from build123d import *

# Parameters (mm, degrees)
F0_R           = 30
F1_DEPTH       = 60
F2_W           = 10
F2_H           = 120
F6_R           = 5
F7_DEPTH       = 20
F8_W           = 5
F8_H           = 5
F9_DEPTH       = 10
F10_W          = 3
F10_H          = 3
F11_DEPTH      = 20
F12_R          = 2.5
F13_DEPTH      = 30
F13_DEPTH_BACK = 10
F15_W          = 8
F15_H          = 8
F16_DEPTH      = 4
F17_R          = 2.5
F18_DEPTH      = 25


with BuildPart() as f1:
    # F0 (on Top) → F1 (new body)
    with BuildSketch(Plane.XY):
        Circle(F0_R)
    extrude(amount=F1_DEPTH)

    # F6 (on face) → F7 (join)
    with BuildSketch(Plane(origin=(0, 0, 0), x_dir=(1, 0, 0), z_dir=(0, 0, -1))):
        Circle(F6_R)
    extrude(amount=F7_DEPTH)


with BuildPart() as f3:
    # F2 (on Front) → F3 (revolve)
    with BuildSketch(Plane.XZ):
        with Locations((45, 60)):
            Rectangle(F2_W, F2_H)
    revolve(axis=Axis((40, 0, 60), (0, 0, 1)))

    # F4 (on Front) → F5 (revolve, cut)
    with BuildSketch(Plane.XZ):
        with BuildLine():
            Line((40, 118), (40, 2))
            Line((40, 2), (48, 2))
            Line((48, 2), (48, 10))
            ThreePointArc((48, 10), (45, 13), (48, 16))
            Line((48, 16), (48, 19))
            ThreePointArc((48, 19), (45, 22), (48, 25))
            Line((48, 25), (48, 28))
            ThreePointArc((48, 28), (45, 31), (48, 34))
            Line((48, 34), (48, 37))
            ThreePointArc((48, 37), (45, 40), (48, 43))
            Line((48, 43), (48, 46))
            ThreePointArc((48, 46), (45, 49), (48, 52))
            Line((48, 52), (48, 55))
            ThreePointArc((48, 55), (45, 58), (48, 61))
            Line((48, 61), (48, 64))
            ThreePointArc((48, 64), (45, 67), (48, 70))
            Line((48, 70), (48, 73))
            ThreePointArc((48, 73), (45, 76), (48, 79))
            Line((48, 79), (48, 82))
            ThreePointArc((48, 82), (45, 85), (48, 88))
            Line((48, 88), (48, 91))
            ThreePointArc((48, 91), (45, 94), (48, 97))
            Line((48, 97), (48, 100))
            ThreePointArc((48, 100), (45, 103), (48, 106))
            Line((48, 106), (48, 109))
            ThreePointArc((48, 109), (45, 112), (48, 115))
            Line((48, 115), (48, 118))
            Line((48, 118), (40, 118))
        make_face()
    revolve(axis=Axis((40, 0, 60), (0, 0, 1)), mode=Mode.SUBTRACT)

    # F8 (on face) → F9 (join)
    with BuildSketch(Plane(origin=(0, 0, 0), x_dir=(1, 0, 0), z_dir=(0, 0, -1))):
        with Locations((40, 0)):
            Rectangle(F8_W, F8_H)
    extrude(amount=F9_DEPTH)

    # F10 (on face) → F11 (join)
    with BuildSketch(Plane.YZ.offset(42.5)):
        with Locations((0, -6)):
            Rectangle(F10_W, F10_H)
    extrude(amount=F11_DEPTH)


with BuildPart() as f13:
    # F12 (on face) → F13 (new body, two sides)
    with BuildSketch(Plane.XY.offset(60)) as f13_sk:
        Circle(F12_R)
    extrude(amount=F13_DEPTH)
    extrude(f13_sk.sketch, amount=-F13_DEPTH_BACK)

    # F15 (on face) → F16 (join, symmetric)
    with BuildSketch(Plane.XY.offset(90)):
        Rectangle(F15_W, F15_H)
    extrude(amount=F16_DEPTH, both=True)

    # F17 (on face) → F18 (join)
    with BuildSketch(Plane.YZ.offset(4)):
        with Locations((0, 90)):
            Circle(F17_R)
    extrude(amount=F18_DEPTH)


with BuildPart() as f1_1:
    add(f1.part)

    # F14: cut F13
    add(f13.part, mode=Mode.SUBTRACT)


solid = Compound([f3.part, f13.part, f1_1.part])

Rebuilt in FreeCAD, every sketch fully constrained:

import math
import FreeCAD as App
import Part
import Sketcher


def add_polygon(sketch, points):
    """Adds a closed chain of lines whose ends are joined by coincident constraints."""
    first, n = sketch.GeometryCount, len(points)
    for a, b in zip(points, points[1:] + points[:1]):
        sketch.addGeometry(Part.LineSegment(App.Vector(*a, 0), App.Vector(*b, 0)), False)
    for i in range(n):
        sketch.addConstraint(Sketcher.Constraint("Coincident", first + i, 2, first + (i + 1) % n, 1))

doc = App.newDocument("Part")
params = doc.addObject("Spreadsheet::Sheet", "Params")
for row, (alias, value) in enumerate([
    ("sketch1_diameter", "60 mm"),
    ("pad1_length", "60 mm"),
    ("sketch2_diameter", "10 mm"),
    ("pad2_length", "20 mm"),
    ("sketch3_width", "10 mm"),
    ("sketch3_height", "120 mm"),
    ("revolution_angle", "360 deg"),
    ("sketch4_radius", "3 mm"),
    ("sketch4_width", "8 mm"),
    ("sketch4_height", "116 mm"),
    ("groove_angle", "360 deg"),
    ("sketch5_width", "5 mm"),
    ("pad3_length", "10 mm"),
    ("sketch6_width", "3 mm"),
    ("pad4_length", "20 mm"),
    ("sketch7_diameter", "5 mm"),
    ("pad5_length", "30 mm"),
    ("pad5_length2", "10 mm"),
    ("sketch8_width", "8 mm"),
    ("pad6_length", "8 mm"),
    ("sketch9_diameter", "5 mm"),
    ("pad7_length", "25 mm"),
], start=1):
    params.set(f"A{row}", alias)
    params.set(f"B{row}", "=" + value)
    params.setAlias(f"B{row}", alias)

body = doc.addObject("PartDesign::Body", "Body")

sketch1 = body.newObject("Sketcher::SketchObject", "Sketch")
sketch1.AttachmentSupport = (doc.getObject("XY_Plane"), [""])
sketch1.MapMode = "FlatFace"
sketch1.addGeometry(Part.Circle(App.Vector(0, 0, 0), App.Vector(0, 0, 1), 30), False)
sketch1.addConstraint(Sketcher.Constraint("Coincident", 0, 3, -1, 1))
sketch1.addConstraint(Sketcher.Constraint("Diameter", 0, 60.0))
sketch1.setExpression("Constraints[1]", "Params.sketch1_diameter")
pad1 = body.newObject("PartDesign::Pad", "Pad")
pad1.Profile = sketch1
pad1.setExpression("Length", "Params.pad1_length")

sketch2 = body.newObject("Sketcher::SketchObject", "Sketch001")
sketch2.AttachmentSupport = (doc.getObject("XY_Plane"), [""])
sketch2.MapMode = "FlatFace"
sketch2.addGeometry(Part.Circle(App.Vector(0, 0, 0), App.Vector(0, 0, 1), 5), False)
sketch2.addConstraint(Sketcher.Constraint("Coincident", 0, 3, -1, 1))
sketch2.addConstraint(Sketcher.Constraint("Diameter", 0, 10.0))
sketch2.setExpression("Constraints[1]", "Params.sketch2_diameter")
pad2 = body.newObject("PartDesign::Pad", "Pad001")
pad2.Profile = sketch2
pad2.setExpression("Length", "Params.pad2_length")
pad2.Reversed = True
body2 = doc.addObject("PartDesign::Body", "Body001")

sketch3 = body2.newObject("Sketcher::SketchObject", "Sketch002")
sketch3.AttachmentSupport = (doc.getObject("XZ_Plane001"), [""])
sketch3.MapMode = "FlatFace"
add_polygon(sketch3, [(40, 120), (40, 0), (50, 0), (50, 120)])
sketch3.addGeometry(Part.LineSegment(App.Vector(40, 0, 0), App.Vector(40, 120, 0)), True)
sketch3.addConstraint(Sketcher.Constraint("Vertical", 0))
sketch3.addConstraint(Sketcher.Constraint("Horizontal", 1))
sketch3.addConstraint(Sketcher.Constraint("Vertical", 2))
sketch3.addConstraint(Sketcher.Constraint("Horizontal", 3))
sketch3.addConstraint(Sketcher.Constraint("Vertical", 4))
sketch3.addConstraint(Sketcher.Constraint("Coincident", 4, 1, 0, 2))
sketch3.addConstraint(Sketcher.Constraint("PointOnObject", 0, 2, -1))
sketch3.addConstraint(Sketcher.Constraint("Horizontal", 2, 2, 4, 2))
sketch3.addConstraint(Sketcher.Constraint("DistanceX", 1, 1, 1, 2, 10.0))
sketch3.addConstraint(Sketcher.Constraint("DistanceY", 0, 2, 0, 1, 120.0))
sketch3.addConstraint(Sketcher.Constraint("DistanceX", -1, 1, 0, 2, 40.0))
sketch3.setExpression("Constraints[12]", "Params.sketch3_width")
sketch3.setExpression("Constraints[13]", "Params.sketch3_height")
revolution = body2.newObject("PartDesign::Revolution", "Revolution")
revolution.Profile = sketch3
revolution.ReferenceAxis = (sketch3, ["Axis0"])
revolution.setExpression("Angle", "Params.revolution_angle")

sketch4 = body2.newObject("Sketcher::SketchObject", "Sketch003")
sketch4.AttachmentSupport = (doc.getObject("XZ_Plane001"), [""])
sketch4.MapMode = "FlatFace"
sketch4.addGeometry(Part.LineSegment(App.Vector(40, 118, 0), App.Vector(40, 2, 0)), False)
sketch4.addGeometry(Part.LineSegment(App.Vector(40, 2, 0), App.Vector(48, 2, 0)), False)
sketch4.addGeometry(Part.LineSegment(App.Vector(48, 2, 0), App.Vector(48, 10, 0)), False)
sketch4.addGeometry(Part.ArcOfCircle(Part.Circle(App.Vector(48, 13, 0), App.Vector(0, 0, 1), 3), math.radians(90), math.radians(270)), False)
sketch4.addGeometry(Part.LineSegment(App.Vector(48, 16, 0), App.Vector(48, 19, 0)), False)
sketch4.addGeometry(Part.ArcOfCircle(Part.Circle(App.Vector(48, 22, 0), App.Vector(0, 0, 1), 3), math.radians(90), math.radians(270)), False)
sketch4.addGeometry(Part.LineSegment(App.Vector(48, 25, 0), App.Vector(48, 28, 0)), False)
sketch4.addGeometry(Part.ArcOfCircle(Part.Circle(App.Vector(48, 31, 0), App.Vector(0, 0, 1), 3), math.radians(90), math.radians(270)), False)
sketch4.addGeometry(Part.LineSegment(App.Vector(48, 34, 0), App.Vector(48, 37, 0)), False)
sketch4.addGeometry(Part.ArcOfCircle(Part.Circle(App.Vector(48, 40, 0), App.Vector(0, 0, 1), 3), math.radians(90), math.radians(270)), False)
sketch4.addGeometry(Part.LineSegment(App.Vector(48, 43, 0), App.Vector(48, 46, 0)), False)
sketch4.addGeometry(Part.ArcOfCircle(Part.Circle(App.Vector(48, 49, 0), App.Vector(0, 0, 1), 3), math.radians(90), math.radians(270)), False)
sketch4.addGeometry(Part.LineSegment(App.Vector(48, 52, 0), App.Vector(48, 55, 0)), False)
sketch4.addGeometry(Part.ArcOfCircle(Part.Circle(App.Vector(48, 58, 0), App.Vector(0, 0, 1), 3), math.radians(90), math.radians(270)), False)
sketch4.addGeometry(Part.LineSegment(App.Vector(48, 61, 0), App.Vector(48, 64, 0)), False)
sketch4.addGeometry(Part.ArcOfCircle(Part.Circle(App.Vector(48, 67, 0), App.Vector(0, 0, 1), 3), math.radians(90), math.radians(270)), False)
sketch4.addGeometry(Part.LineSegment(App.Vector(48, 70, 0), App.Vector(48, 73, 0)), False)
sketch4.addGeometry(Part.ArcOfCircle(Part.Circle(App.Vector(48, 76, 0), App.Vector(0, 0, 1), 3), math.radians(90), math.radians(270)), False)
sketch4.addGeometry(Part.LineSegment(App.Vector(48, 79, 0), App.Vector(48, 82, 0)), False)
sketch4.addGeometry(Part.ArcOfCircle(Part.Circle(App.Vector(48, 85, 0), App.Vector(0, 0, 1), 3), math.radians(90), math.radians(270)), False)
sketch4.addGeometry(Part.LineSegment(App.Vector(48, 88, 0), App.Vector(48, 91, 0)), False)
sketch4.addGeometry(Part.ArcOfCircle(Part.Circle(App.Vector(48, 94, 0), App.Vector(0, 0, 1), 3), math.radians(90), math.radians(270)), False)
sketch4.addGeometry(Part.LineSegment(App.Vector(48, 97, 0), App.Vector(48, 100, 0)), False)
sketch4.addGeometry(Part.ArcOfCircle(Part.Circle(App.Vector(48, 103, 0), App.Vector(0, 0, 1), 3), math.radians(90), math.radians(270)), False)
sketch4.addGeometry(Part.LineSegment(App.Vector(48, 106, 0), App.Vector(48, 109, 0)), False)
sketch4.addGeometry(Part.ArcOfCircle(Part.Circle(App.Vector(48, 112, 0), App.Vector(0, 0, 1), 3), math.radians(90), math.radians(270)), False)
sketch4.addGeometry(Part.LineSegment(App.Vector(48, 115, 0), App.Vector(48, 118, 0)), False)
sketch4.addGeometry(Part.LineSegment(App.Vector(48, 118, 0), App.Vector(40, 118, 0)), False)
sketch4.addGeometry(Part.LineSegment(App.Vector(40, 2, 0), App.Vector(40, 118, 0)), True)
sketch4.addConstraint(Sketcher.Constraint("Coincident", 0, 2, 1, 1))
sketch4.addConstraint(Sketcher.Constraint("Coincident", 1, 2, 2, 1))
sketch4.addConstraint(Sketcher.Constraint("Coincident", 2, 2, 3, 2))
sketch4.addConstraint(Sketcher.Constraint("Coincident", 3, 1, 4, 1))
sketch4.addConstraint(Sketcher.Constraint("Coincident", 4, 2, 5, 2))
sketch4.addConstraint(Sketcher.Constraint("Coincident", 5, 1, 6, 1))
sketch4.addConstraint(Sketcher.Constraint("Coincident", 6, 2, 7, 2))
sketch4.addConstraint(Sketcher.Constraint("Coincident", 7, 1, 8, 1))
sketch4.addConstraint(Sketcher.Constraint("Coincident", 8, 2, 9, 2))
sketch4.addConstraint(Sketcher.Constraint("Coincident", 9, 1, 10, 1))
sketch4.addConstraint(Sketcher.Constraint("Coincident", 10, 2, 11, 2))
sketch4.addConstraint(Sketcher.Constraint("Coincident", 11, 1, 12, 1))
sketch4.addConstraint(Sketcher.Constraint("Coincident", 12, 2, 13, 2))
sketch4.addConstraint(Sketcher.Constraint("Coincident", 13, 1, 14, 1))
sketch4.addConstraint(Sketcher.Constraint("Coincident", 14, 2, 15, 2))
sketch4.addConstraint(Sketcher.Constraint("Coincident", 15, 1, 16, 1))
sketch4.addConstraint(Sketcher.Constraint("Coincident", 16, 2, 17, 2))
sketch4.addConstraint(Sketcher.Constraint("Coincident", 17, 1, 18, 1))
sketch4.addConstraint(Sketcher.Constraint("Coincident", 18, 2, 19, 2))
sketch4.addConstraint(Sketcher.Constraint("Coincident", 19, 1, 20, 1))
sketch4.addConstraint(Sketcher.Constraint("Coincident", 20, 2, 21, 2))
sketch4.addConstraint(Sketcher.Constraint("Coincident", 21, 1, 22, 1))
sketch4.addConstraint(Sketcher.Constraint("Coincident", 22, 2, 23, 2))
sketch4.addConstraint(Sketcher.Constraint("Coincident", 23, 1, 24, 1))
sketch4.addConstraint(Sketcher.Constraint("Coincident", 24, 2, 25, 2))
sketch4.addConstraint(Sketcher.Constraint("Coincident", 25, 1, 26, 1))
sketch4.addConstraint(Sketcher.Constraint("Coincident", 26, 2, 27, 1))
sketch4.addConstraint(Sketcher.Constraint("Coincident", 27, 2, 0, 1))
sketch4.addConstraint(Sketcher.Constraint("Vertical", 0))
sketch4.addConstraint(Sketcher.Constraint("Horizontal", 1))
sketch4.addConstraint(Sketcher.Constraint("Vertical", 2))
sketch4.addConstraint(Sketcher.Constraint("Vertical", 4))
sketch4.addConstraint(Sketcher.Constraint("Vertical", 6))
sketch4.addConstraint(Sketcher.Constraint("Vertical", 8))
sketch4.addConstraint(Sketcher.Constraint("Vertical", 10))
sketch4.addConstraint(Sketcher.Constraint("Vertical", 12))
sketch4.addConstraint(Sketcher.Constraint("Vertical", 14))
sketch4.addConstraint(Sketcher.Constraint("Vertical", 16))
sketch4.addConstraint(Sketcher.Constraint("Vertical", 18))
sketch4.addConstraint(Sketcher.Constraint("Vertical", 20))
sketch4.addConstraint(Sketcher.Constraint("Vertical", 22))
sketch4.addConstraint(Sketcher.Constraint("Vertical", 24))
sketch4.addConstraint(Sketcher.Constraint("Vertical", 26))
sketch4.addConstraint(Sketcher.Constraint("Horizontal", 27))
sketch4.addConstraint(Sketcher.Constraint("Vertical", 28))
sketch4.addConstraint(Sketcher.Constraint("Coincident", 28, 1, 0, 2))
sketch4.addConstraint(Sketcher.Constraint("Equal", 3, 5))
sketch4.addConstraint(Sketcher.Constraint("Equal", 5, 7))
sketch4.addConstraint(Sketcher.Constraint("Equal", 7, 9))
sketch4.addConstraint(Sketcher.Constraint("Equal", 9, 11))
sketch4.addConstraint(Sketcher.Constraint("Equal", 11, 13))
sketch4.addConstraint(Sketcher.Constraint("Equal", 13, 15))
sketch4.addConstraint(Sketcher.Constraint("Equal", 15, 17))
sketch4.addConstraint(Sketcher.Constraint("Equal", 17, 19))
sketch4.addConstraint(Sketcher.Constraint("Equal", 19, 21))
sketch4.addConstraint(Sketcher.Constraint("Equal", 21, 23))
sketch4.addConstraint(Sketcher.Constraint("Equal", 23, 25))
sketch4.addConstraint(Sketcher.Constraint("Horizontal", 26, 2, 28, 2))
sketch4.addConstraint(Sketcher.Constraint("Vertical", 3, 3, 5, 3))
sketch4.addConstraint(Sketcher.Constraint("Vertical", 5, 3, 7, 3))
sketch4.addConstraint(Sketcher.Constraint("Vertical", 7, 3, 9, 3))
sketch4.addConstraint(Sketcher.Constraint("Vertical", 9, 3, 11, 3))
sketch4.addConstraint(Sketcher.Constraint("Vertical", 11, 3, 13, 3))
sketch4.addConstraint(Sketcher.Constraint("Vertical", 13, 3, 15, 3))
sketch4.addConstraint(Sketcher.Constraint("Vertical", 15, 3, 17, 3))
sketch4.addConstraint(Sketcher.Constraint("Vertical", 17, 3, 19, 3))
sketch4.addConstraint(Sketcher.Constraint("Vertical", 19, 3, 21, 3))
sketch4.addConstraint(Sketcher.Constraint("Vertical", 21, 3, 23, 3))
sketch4.addConstraint(Sketcher.Constraint("Vertical", 23, 3, 25, 3))
sketch4.addConstraint(Sketcher.Constraint("Vertical", 25, 3, 1, 2))
sketch4.addConstraint(Sketcher.Constraint("Vertical", 2, 2, 3, 1))
sketch4.addConstraint(Sketcher.Constraint("Vertical", 4, 2, 5, 1))
sketch4.addConstraint(Sketcher.Constraint("Vertical", 6, 2, 7, 1))
sketch4.addConstraint(Sketcher.Constraint("Vertical", 8, 2, 9, 1))
sketch4.addConstraint(Sketcher.Constraint("Vertical", 10, 2, 11, 1))
sketch4.addConstraint(Sketcher.Constraint("Vertical", 12, 2, 13, 1))
sketch4.addConstraint(Sketcher.Constraint("Vertical", 14, 2, 15, 1))
sketch4.addConstraint(Sketcher.Constraint("Vertical", 16, 2, 17, 1))
sketch4.addConstraint(Sketcher.Constraint("Vertical", 18, 2, 19, 1))
sketch4.addConstraint(Sketcher.Constraint("Vertical", 20, 2, 21, 1))
sketch4.addConstraint(Sketcher.Constraint("Vertical", 22, 2, 23, 1))
sketch4.addConstraint(Sketcher.Constraint("Vertical", 24, 2, 25, 1))
sketch4.addConstraint(Sketcher.Constraint("Equal", 27, 2))
sketch4.addConstraint(Sketcher.Constraint("Equal", 4, 6))
sketch4.addConstraint(Sketcher.Constraint("Equal", 6, 8))
sketch4.addConstraint(Sketcher.Constraint("Equal", 8, 10))
sketch4.addConstraint(Sketcher.Constraint("Equal", 10, 12))
sketch4.addConstraint(Sketcher.Constraint("Equal", 12, 14))
sketch4.addConstraint(Sketcher.Constraint("Equal", 14, 16))
sketch4.addConstraint(Sketcher.Constraint("Equal", 16, 18))
sketch4.addConstraint(Sketcher.Constraint("Equal", 18, 20))
sketch4.addConstraint(Sketcher.Constraint("Equal", 20, 22))
sketch4.addConstraint(Sketcher.Constraint("Equal", 22, 24))
sketch4.addConstraint(Sketcher.Constraint("Equal", 24, 26))
sketch4.addConstraint(Sketcher.Constraint("Radius", 3, 3.0))
sketch4.addConstraint(Sketcher.Constraint("DistanceX", 1, 1, 1, 2, 8.0))
sketch4.addConstraint(Sketcher.Constraint("DistanceY", 0, 2, 0, 1, 116.0))
sketch4.addConstraint(Sketcher.Constraint("DistanceX", -1, 1, 3, 3, 48.0))
sketch4.addConstraint(Sketcher.Constraint("DistanceY", -1, 1, 3, 3, 13.0))
sketch4.setExpression("Constraints[94]", "Params.sketch4_radius")
sketch4.setExpression("Constraints[95]", "Params.sketch4_width")
sketch4.setExpression("Constraints[96]", "Params.sketch4_height")
groove = body2.newObject("PartDesign::Groove", "Groove")
groove.Profile = sketch4
groove.ReferenceAxis = (sketch4, ["Axis0"])
groove.setExpression("Angle", "Params.groove_angle")

sketch5 = body2.newObject("Sketcher::SketchObject", "Sketch004")
sketch5.AttachmentSupport = (doc.getObject("XY_Plane001"), [""])
sketch5.MapMode = "FlatFace"
add_polygon(sketch5, [(38, -2), (38, 2), (42, 2), (42, -2)])
sketch5.addConstraint(Sketcher.Constraint("Vertical", 0))
sketch5.addConstraint(Sketcher.Constraint("Horizontal", 1))
sketch5.addConstraint(Sketcher.Constraint("Vertical", 2))
sketch5.addConstraint(Sketcher.Constraint("Horizontal", 3))
sketch5.addConstraint(Sketcher.Constraint("Equal", 3, 0))
sketch5.addConstraint(Sketcher.Constraint("DistanceX", 1, 1, 1, 2, 5.0))
sketch5.addConstraint(Sketcher.Constraint("DistanceX", -1, 1, 0, 2, 37.5))
sketch5.addConstraint(Sketcher.Constraint("DistanceY", -1, 1, 0, 2, 2.5))
sketch5.setExpression("Constraints[9]", "Params.sketch5_width")
pad3 = body2.newObject("PartDesign::Pad", "Pad002")
pad3.Profile = sketch5
pad3.setExpression("Length", "Params.pad3_length")
pad3.Reversed = True

sketch6 = body2.newObject("Sketcher::SketchObject", "Sketch005")
sketch6.AttachmentSupport = (doc.getObject("YZ_Plane001"), [""])
sketch6.MapMode = "FlatFace"
sketch6.AttachmentOffset = App.Placement(App.Vector(0, 0, 42.5), App.Rotation())
add_polygon(sketch6, [(-1.5, -4.5), (-1.5, -7.5), (1.5, -7.5), (1.5, -4.5)])
sketch6.addConstraint(Sketcher.Constraint("Vertical", 0))
sketch6.addConstraint(Sketcher.Constraint("Horizontal", 1))
sketch6.addConstraint(Sketcher.Constraint("Vertical", 2))
sketch6.addConstraint(Sketcher.Constraint("Horizontal", 3))
sketch6.addConstraint(Sketcher.Constraint("Equal", 3, 0))
sketch6.addConstraint(Sketcher.Constraint("DistanceX", 1, 1, 1, 2, 3.0))
sketch6.addConstraint(Sketcher.Constraint("DistanceX", 0, 2, -1, 1, 1.5))
sketch6.addConstraint(Sketcher.Constraint("DistanceY", 0, 2, -1, 1, 7.5))
sketch6.setExpression("Constraints[9]", "Params.sketch6_width")
pad4 = body2.newObject("PartDesign::Pad", "Pad003")
pad4.Profile = sketch6
pad4.setExpression("Length", "Params.pad4_length")
body3 = doc.addObject("PartDesign::Body", "Body002")

sketch7 = body3.newObject("Sketcher::SketchObject", "Sketch006")
sketch7.AttachmentSupport = (doc.getObject("XY_Plane002"), [""])
sketch7.MapMode = "FlatFace"
sketch7.AttachmentOffset = App.Placement(App.Vector(0, 0, 60), App.Rotation())
sketch7.addGeometry(Part.Circle(App.Vector(0, 0, 0), App.Vector(0, 0, 1), 2.5), False)
sketch7.addConstraint(Sketcher.Constraint("Coincident", 0, 3, -1, 1))
sketch7.addConstraint(Sketcher.Constraint("Diameter", 0, 5.0))
sketch7.setExpression("Constraints[1]", "Params.sketch7_diameter")
pad5 = body3.newObject("PartDesign::Pad", "Pad004")
pad5.Profile = sketch7
pad5.Type = "TwoLengths"
pad5.setExpression("Length", "Params.pad5_length")
pad5.setExpression("Length2", "Params.pad5_length2")

sketch8 = body3.newObject("Sketcher::SketchObject", "Sketch007")
sketch8.AttachmentSupport = (doc.getObject("XY_Plane002"), [""])
sketch8.MapMode = "FlatFace"
sketch8.AttachmentOffset = App.Placement(App.Vector(0, 0, 90), App.Rotation())
add_polygon(sketch8, [(-4, 4), (-4, -4), (4, -4), (4, 4)])
sketch8.addConstraint(Sketcher.Constraint("Vertical", 0))
sketch8.addConstraint(Sketcher.Constraint("Horizontal", 1))
sketch8.addConstraint(Sketcher.Constraint("Vertical", 2))
sketch8.addConstraint(Sketcher.Constraint("Horizontal", 3))
sketch8.addConstraint(Sketcher.Constraint("Symmetric", 0, 2, 2, 2, -1, 1))
sketch8.addConstraint(Sketcher.Constraint("Equal", 3, 0))
sketch8.addConstraint(Sketcher.Constraint("DistanceX", 1, 1, 1, 2, 8.0))
sketch8.setExpression("Constraints[10]", "Params.sketch8_width")
pad6 = body3.newObject("PartDesign::Pad", "Pad005")
pad6.Profile = sketch8
pad6.setExpression("Length", "Params.pad6_length")
pad6.Midplane = True

sketch9 = body3.newObject("Sketcher::SketchObject", "Sketch008")
sketch9.AttachmentSupport = (doc.getObject("YZ_Plane002"), [""])
sketch9.MapMode = "FlatFace"
sketch9.AttachmentOffset = App.Placement(App.Vector(0, 0, 4), App.Rotation())
sketch9.addGeometry(Part.Circle(App.Vector(0, 90, 0), App.Vector(0, 0, 1), 2.5), False)
sketch9.addConstraint(Sketcher.Constraint("PointOnObject", 0, 3, -2))
sketch9.addConstraint(Sketcher.Constraint("Diameter", 0, 5.0))
sketch9.addConstraint(Sketcher.Constraint("DistanceY", -1, 1, 0, 3, 90.0))
sketch9.setExpression("Constraints[1]", "Params.sketch9_diameter")
pad7 = body3.newObject("PartDesign::Pad", "Pad006")
pad7.Profile = sketch9
pad7.setExpression("Length", "Params.pad7_length")
doc.recompute()

body4 = doc.addObject("PartDesign::Body", "Body003")
body4.BaseFeature = body3
boolean = body.newObject("PartDesign::Boolean", "Boolean")
boolean.Type = "Cut"
boolean.addObjects([body4])
doc.recompute()

doc.recompute()
